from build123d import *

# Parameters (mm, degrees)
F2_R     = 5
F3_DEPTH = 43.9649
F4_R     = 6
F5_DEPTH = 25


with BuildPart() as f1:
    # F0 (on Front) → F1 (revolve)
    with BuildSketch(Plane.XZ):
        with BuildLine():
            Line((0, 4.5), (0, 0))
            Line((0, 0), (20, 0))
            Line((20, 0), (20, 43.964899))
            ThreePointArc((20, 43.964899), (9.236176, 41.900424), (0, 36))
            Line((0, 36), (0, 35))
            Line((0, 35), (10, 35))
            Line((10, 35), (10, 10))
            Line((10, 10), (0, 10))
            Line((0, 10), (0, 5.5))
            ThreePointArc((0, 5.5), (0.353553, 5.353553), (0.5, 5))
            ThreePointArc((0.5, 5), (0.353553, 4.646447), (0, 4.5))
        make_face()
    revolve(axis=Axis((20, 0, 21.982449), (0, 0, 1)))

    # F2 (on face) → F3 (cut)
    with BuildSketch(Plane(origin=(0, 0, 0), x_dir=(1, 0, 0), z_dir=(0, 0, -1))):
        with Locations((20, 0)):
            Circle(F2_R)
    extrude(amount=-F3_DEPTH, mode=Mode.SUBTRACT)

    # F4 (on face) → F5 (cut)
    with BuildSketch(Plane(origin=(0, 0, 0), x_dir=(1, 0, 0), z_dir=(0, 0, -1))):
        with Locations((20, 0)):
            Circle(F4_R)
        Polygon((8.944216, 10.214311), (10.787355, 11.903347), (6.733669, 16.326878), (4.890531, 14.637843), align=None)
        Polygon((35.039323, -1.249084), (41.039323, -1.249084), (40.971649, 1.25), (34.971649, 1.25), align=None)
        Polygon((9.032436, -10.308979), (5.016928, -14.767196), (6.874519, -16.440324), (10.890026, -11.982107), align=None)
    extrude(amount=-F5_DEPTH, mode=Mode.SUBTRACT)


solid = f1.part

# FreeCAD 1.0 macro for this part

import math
import FreeCAD as App
import Part
import Sketcher

V = App.Vector
Q = App.Units.Quantity


def add_polygon(sketch, points):
    """Adds a closed chain of lines whose ends are joined by coincident constraints."""
    first, n = sketch.GeometryCount, len(points)
    for a, b in zip(points, points[1:] + points[:1]):
        sketch.addGeometry(Part.LineSegment(App.Vector(*a, 0), App.Vector(*b, 0)), False)
    for i in range(n):
        sketch.addConstraint(Sketcher.Constraint("Coincident", first + i, 2, first + (i + 1) % n, 1))

doc = App.newDocument("Part")
body = doc.addObject("PartDesign::Body", "Body")

# Sketch on XZ plane
sketch1 = body.newObject("Sketcher::SketchObject", "Sketch")
sketch1.AttachmentSupport = (doc.getObject("XZ_Plane"), [""])
sketch1.MapMode = "FlatFace"
sketch1.addGeometry([
    Part.LineSegment(V(0, 4.5, 0), V(0, 0, 0)),  # 0
    Part.LineSegment(V(0, 0, 0), V(20, 0, 0)),  # 1
    Part.LineSegment(V(20, 0, 0), V(20, 43.964899, 0)),  # 2
    Part.ArcOfCircle(Part.Circle(V(20.000002, 14.87227, 0), V(0, 0, 1), 29.092629), math.radians(90.000004), math.radians(133.429336)),  # 3
    Part.LineSegment(V(0, 36, 0), V(0, 35, 0)),  # 4
    Part.LineSegment(V(0, 35, 0), V(10, 35, 0)),  # 5
    Part.LineSegment(V(10, 35, 0), V(10, 10, 0)),  # 6
    Part.LineSegment(V(10, 10, 0), V(0, 10, 0)),  # 7
    Part.LineSegment(V(0, 10, 0), V(0, 5.5, 0)),  # 8
    Part.ArcOfCircle(Part.Circle(V(-0.000001, 4.999999, 0), V(0, 0, 1), 0.500001), math.radians(0.000153), math.radians(89.999847)),  # 9
    Part.ArcOfCircle(Part.Circle(V(-0.000001, 5.000001, 0), V(0, 0, 1), 0.500001), math.radians(-89.999847), math.radians(-0.000153)),  # 10
], False)
sketch1.addGeometry(Part.LineSegment(V(20, 0, 0), V(20, 43.964899, 0)), True)  # axis
sketch1.addConstraint([
    Sketcher.Constraint("Coincident", 0, 2, 1, 1),
    Sketcher.Constraint("Coincident", 1, 2, 2, 1),
    Sketcher.Constraint("Coincident", 2, 2, 3, 1),
    Sketcher.Constraint("Coincident", 3, 2, 4, 1),
    Sketcher.Constraint("Coincident", 4, 2, 5, 1),
    Sketcher.Constraint("Coincident", 5, 2, 6, 1),
    Sketcher.Constraint("Coincident", 6, 2, 7, 1),
    Sketcher.Constraint("Coincident", 7, 2, 8, 1),
    Sketcher.Constraint("Coincident", 8, 2, 9, 2),
    Sketcher.Constraint("Coincident", 9, 1, 10, 2),
    Sketcher.Constraint("Coincident", 10, 1, 0, 1),
    Sketcher.Constraint("Vertical", 0),
    Sketcher.Constraint("Horizontal", 1),
    Sketcher.Constraint("Vertical", 2),
    Sketcher.Constraint("Vertical", 4),
    Sketcher.Constraint("Horizontal", 5),
    Sketcher.Constraint("Vertical", 6),
    Sketcher.Constraint("Horizontal", 7),
    Sketcher.Constraint("Vertical", 8),
    Sketcher.Constraint("Vertical", 11),
    Sketcher.Constraint("Coincident", 0, 2, -1, 1),
    Sketcher.Constraint("Coincident", 10, 3, 9, 3),
    Sketcher.Constraint("Coincident", 11, 1, 1, 2),
    Sketcher.Constraint("PointOnObject", 9, 3, -2),
    Sketcher.Constraint("PointOnObject", 3, 2, -2),
    Sketcher.Constraint("PointOnObject", 7, 2, -2),
    Sketcher.Constraint("Horizontal", 10, 3, 9, 1),
    Sketcher.Constraint("Equal", 0, 8),
    Sketcher.Constraint("Equal", 2, 11),
    Sketcher.Constraint("Radius", 9, Q("0.500001 mm")),
    Sketcher.Constraint("DistanceX", 1, 1, 1, 2, Q("20 mm")),
    Sketcher.Constraint("DistanceX", 5, 1, 5, 2, Q("10 mm")),
    Sketcher.Constraint("DistanceY", 4, 2, 4, 1, Q("1 mm")),
    Sketcher.Constraint("DistanceY", 6, 2, 6, 1, Q("25 mm")),
    Sketcher.Constraint("DistanceY", 0, 2, 0, 1, Q("4.5 mm")),
    Sketcher.Constraint("Radius", 3, Q("29.092629 mm")),
    Sketcher.Constraint("DistanceY", 2, 1, 2, 2, Q("43.964899 mm")),
])
revolution = body.newObject("PartDesign::Revolution", "Revolution")
revolution.Profile = sketch1
revolution.ReferenceAxis = (sketch1, ["Axis0"])
revolution.Angle = 360

# Sketch on XY plane
sketch2 = body.newObject("Sketcher::SketchObject", "Sketch001")
sketch2.AttachmentSupport = (doc.getObject("XY_Plane"), [""])
sketch2.MapMode = "FlatFace"
sketch2.addGeometry(Part.Circle(V(20, 0, 0), V(0, 0, 1), 5), False)
sketch2.addConstraint([
    Sketcher.Constraint("PointOnObject", 0, 3, -1),
    Sketcher.Constraint("Diameter", 0, Q("10 mm")),
    Sketcher.Constraint("DistanceX", -1, 1, 0, 3, Q("20 mm")),
])
pocket1 = body.newObject("PartDesign::Pocket", "Pocket")
pocket1.Profile = sketch2
pocket1.Length = 43.9649
pocket1.Reversed = True

# Sketch on XY plane
sketch3 = body.newObject("Sketcher::SketchObject", "Sketch002")
sketch3.AttachmentSupport = (doc.getObject("XY_Plane"), [""])
sketch3.MapMode = "FlatFace"
sketch3.addGeometry(Part.Circle(V(20, 0, 0), V(0, 0, 1), 6), False)  # 0
add_polygon(sketch3, [(8.944216, -10.214311), (10.787355, -11.903347), (6.733669, -16.326878), (4.890531, -14.637843)])  # lines 1-4
add_polygon(sketch3, [(35.039323, 1.249084), (41.039323, 1.249084), (40.971649, -1.25), (34.971649, -1.25)])  # lines 5-8
add_polygon(sketch3, [(9.032436, 10.308979), (5.016928, 14.767196), (6.874519, 16.440324), (10.890026, 11.982107)])  # lines 9-12
sketch3.addConstraint([
    Sketcher.Constraint("Horizontal", 5),
    Sketcher.Constraint("Horizontal", 7),
    Sketcher.Constraint("PointOnObject", 0, 3, -1),
    Sketcher.Constraint("Perpendicular", 1, 2),
    Sketcher.Constraint("Perpendicular", 2, 3),
    Sketcher.Constraint("Perpendicular", 3, 4),
    Sketcher.Constraint("Parallel", 6, 8),
    Sketcher.Constraint("Perpendicular", 9, 10),
    Sketcher.Constraint("Perpendicular", 10, 11),
    Sketcher.Constraint("Perpendicular", 11, 12),
    Sketcher.Constraint("Equal", 3, 6),
    Sketcher.Constraint("Equal", 4, 9),
    Sketcher.Constraint("Equal", 8, 10),
    Sketcher.Constraint("Diameter", 0, Q("12 mm")),
    Sketcher.Constraint("DistanceX", 5, 1, 5, 2, Q("6 mm")),
    Sketcher.Constraint("Distance", 2, Q("6 mm")),
    Sketcher.Constraint("DistanceX", -1, 1, 0, 3, Q("20 mm")),
    Sketcher.Constraint("Distance", 1, Q("2.500001 mm")),
    Sketcher.Constraint("DistanceY", 6, 2, -1, 1, Q("1.25 mm")),
    Sketcher.Constraint("DistanceX", 9, 2, 11, 2, Q("5.873098 mm")),
    Sketcher.Constraint("DistanceX", -1, 1, 2, 2, Q("6.733669 mm")),
    Sketcher.Constraint("DistanceY", 2, 2, -1, 1, Q("16.326878 mm")),
    Sketcher.Constraint("DistanceX", -1, 1, 3, 2, Q("4.890531 mm")),
    Sketcher.Constraint("DistanceX", -1, 1, 6, 2, Q("40.971649 mm")),
    Sketcher.Constraint("DistanceX", -1, 1, 10, 2, Q("6.874519 mm")),
    Sketcher.Constraint("DistanceY", -1, 1, 12, 2, Q("10.308979 mm")),
    Sketcher.Constraint("DistanceX", 1, 2, 5, 2, Q("30.251968 mm")),
])
pocket2 = body.newObject("PartDesign::Pocket", "Pocket001")
pocket2.Profile = sketch3
pocket2.Length = 25
pocket2.Reversed = True

doc.recompute()
